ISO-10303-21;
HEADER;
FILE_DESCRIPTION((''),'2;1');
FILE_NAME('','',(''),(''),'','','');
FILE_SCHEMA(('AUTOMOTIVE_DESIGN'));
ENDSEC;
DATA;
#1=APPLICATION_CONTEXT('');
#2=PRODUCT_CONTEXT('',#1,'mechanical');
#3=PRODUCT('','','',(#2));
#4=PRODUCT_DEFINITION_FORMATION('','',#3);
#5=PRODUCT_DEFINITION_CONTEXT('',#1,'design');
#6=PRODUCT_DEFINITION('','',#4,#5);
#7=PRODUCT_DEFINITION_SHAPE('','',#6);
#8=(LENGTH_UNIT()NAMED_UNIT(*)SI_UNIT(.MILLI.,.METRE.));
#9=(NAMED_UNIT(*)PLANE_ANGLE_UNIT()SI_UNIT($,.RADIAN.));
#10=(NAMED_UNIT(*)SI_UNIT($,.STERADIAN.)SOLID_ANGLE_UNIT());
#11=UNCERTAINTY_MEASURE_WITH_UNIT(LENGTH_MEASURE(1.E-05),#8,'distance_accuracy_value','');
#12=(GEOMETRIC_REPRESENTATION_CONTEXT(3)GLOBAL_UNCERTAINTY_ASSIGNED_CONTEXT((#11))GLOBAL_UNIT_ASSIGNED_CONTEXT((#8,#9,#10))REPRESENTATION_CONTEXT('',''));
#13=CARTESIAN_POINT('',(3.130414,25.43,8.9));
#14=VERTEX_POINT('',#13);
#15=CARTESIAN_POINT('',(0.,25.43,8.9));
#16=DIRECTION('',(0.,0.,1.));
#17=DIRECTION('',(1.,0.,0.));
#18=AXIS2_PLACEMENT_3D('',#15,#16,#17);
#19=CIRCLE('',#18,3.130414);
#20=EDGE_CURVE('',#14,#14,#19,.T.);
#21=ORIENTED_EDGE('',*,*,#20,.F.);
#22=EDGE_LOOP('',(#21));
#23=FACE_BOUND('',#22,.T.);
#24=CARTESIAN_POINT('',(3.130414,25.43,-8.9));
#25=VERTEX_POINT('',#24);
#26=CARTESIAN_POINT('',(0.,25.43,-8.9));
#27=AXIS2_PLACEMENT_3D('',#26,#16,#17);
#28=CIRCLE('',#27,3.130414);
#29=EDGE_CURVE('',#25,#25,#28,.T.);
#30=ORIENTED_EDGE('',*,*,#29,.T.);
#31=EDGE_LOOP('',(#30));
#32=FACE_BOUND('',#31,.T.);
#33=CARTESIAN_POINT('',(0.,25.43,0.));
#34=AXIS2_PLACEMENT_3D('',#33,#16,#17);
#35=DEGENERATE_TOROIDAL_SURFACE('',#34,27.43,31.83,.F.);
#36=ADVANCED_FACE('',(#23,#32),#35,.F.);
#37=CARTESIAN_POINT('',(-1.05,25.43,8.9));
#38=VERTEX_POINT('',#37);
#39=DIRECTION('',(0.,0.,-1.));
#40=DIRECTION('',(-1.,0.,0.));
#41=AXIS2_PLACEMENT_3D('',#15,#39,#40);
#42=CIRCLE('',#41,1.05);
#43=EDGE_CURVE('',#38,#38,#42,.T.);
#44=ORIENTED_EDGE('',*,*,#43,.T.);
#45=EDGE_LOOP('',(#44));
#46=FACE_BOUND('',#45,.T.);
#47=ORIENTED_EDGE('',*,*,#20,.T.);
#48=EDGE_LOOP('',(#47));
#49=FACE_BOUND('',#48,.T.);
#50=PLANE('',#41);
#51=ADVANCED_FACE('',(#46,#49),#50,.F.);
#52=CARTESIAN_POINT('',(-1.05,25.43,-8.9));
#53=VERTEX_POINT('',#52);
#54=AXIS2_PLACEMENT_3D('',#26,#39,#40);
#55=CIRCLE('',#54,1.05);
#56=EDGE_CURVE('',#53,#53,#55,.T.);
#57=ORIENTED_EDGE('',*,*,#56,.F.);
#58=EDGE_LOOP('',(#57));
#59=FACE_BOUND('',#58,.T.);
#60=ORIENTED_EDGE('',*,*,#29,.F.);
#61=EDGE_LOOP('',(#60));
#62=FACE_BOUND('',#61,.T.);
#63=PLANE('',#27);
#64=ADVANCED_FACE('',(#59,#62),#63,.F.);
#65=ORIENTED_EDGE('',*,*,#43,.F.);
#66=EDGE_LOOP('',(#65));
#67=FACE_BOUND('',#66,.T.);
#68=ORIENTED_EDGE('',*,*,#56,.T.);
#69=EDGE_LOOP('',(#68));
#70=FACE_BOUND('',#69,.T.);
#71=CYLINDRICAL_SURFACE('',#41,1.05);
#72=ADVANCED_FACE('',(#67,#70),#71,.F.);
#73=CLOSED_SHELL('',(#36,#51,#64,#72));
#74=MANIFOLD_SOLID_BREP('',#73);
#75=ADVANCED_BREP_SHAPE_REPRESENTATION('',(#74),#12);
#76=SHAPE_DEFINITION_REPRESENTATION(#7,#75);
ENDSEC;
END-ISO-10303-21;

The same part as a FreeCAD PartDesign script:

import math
import FreeCAD as App
import Part
import Sketcher

V = App.Vector

doc = App.newDocument("Part")
body = doc.addObject("PartDesign::Body", "Body")

# Sketch on YZ plane
sketch1 = body.newObject("Sketcher::SketchObject", "Sketch")
sketch1.AttachmentSupport = (doc.getObject("YZ_Plane"), [""])
sketch1.MapMode = "FlatFace"
sketch1.addGeometry([
    Part.LineSegment(V(25.43, -8.9, 0), V(28.56, -8.9, 0)),  # 0
    Part.ArcOfCircle(Part.Circle(V(-2, 0, 0), V(0, 0, 1), 31.83), math.radians(-16.24), math.radians(-15.49)),  # 1
    Part.ArcOfCircle(Part.Circle(V(-2, 0, 0), V(0, 0, 1), 31.83), math.radians(-15), math.radians(15)),  # 2
    Part.ArcOfCircle(Part.Circle(V(-2, 0, 0), V(0, 0, 1), 31.83), math.radians(15.49), math.radians(16.24)),  # 3
    Part.LineSegment(V(28.56, 8.9, 0), V(25.43, 8.9, 0)),  # 4
    Part.LineSegment(V(25.43, 8.9, 0), V(25.43, -8.9, 0)),  # 5
], False)
sketch1.addGeometry(Part.LineSegment(V(25.43, 8.9, 0), V(25.43, -8.9, 0)), True)  # axis
sketch1.addConstraint([
    Sketcher.Constraint("Coincident", 0, 2, 1, 1),
    Sketcher.Constraint("Tangent", 1, 2, 2, 1),
    Sketcher.Constraint("Tangent", 2, 2, 3, 1),
    Sketcher.Constraint("Coincident", 3, 2, 4, 1),
    Sketcher.Constraint("Coincident", 4, 2, 5, 1),
    Sketcher.Constraint("Coincident", 5, 2, 0, 1),
    Sketcher.Constraint("Horizontal", 0),
    Sketcher.Constraint("Horizontal", 4),
    Sketcher.Constraint("Vertical", 5),
    Sketcher.Constraint("Vertical", 6),
    Sketcher.Constraint("Coincident", 3, 3, 1, 3),
    Sketcher.Constraint("Coincident", 6, 1, 4, 2),
    Sketcher.Constraint("Symmetric", 1, 2, 2, 2, -1),
    Sketcher.Constraint("Horizontal", 0, 2, 6, 2),
    Sketcher.Constraint("Vertical", 0, 2, 3, 2),
    Sketcher.Constraint("Radius", 2, 31.83),
    Sketcher.Constraint("DistanceY", 5, 2, 5, 1, 17.8),
    Sketcher.Constraint("DistanceX", 2, 3, -1, 1, 2.0),
    Sketcher.Constraint("DistanceY", 1, 2, 2, 2, 17.0),
    Sketcher.Constraint("DistanceX", -1, 1, 4, 2, 25.43),
])
revolution = body.newObject("PartDesign::Revolution", "Revolution")
revolution.Profile = sketch1
revolution.ReferenceAxis = (sketch1, ["Axis0"])
revolution.Angle = 360

# Sketch on XY plane
sketch2 = body.newObject("Sketcher::SketchObject", "Sketch001")
sketch2.AttachmentSupport = (doc.getObject("XY_Plane"), [""])
sketch2.MapMode = "FlatFace"
sketch2.AttachmentOffset = App.Placement(V(0, 0, -8.9), App.Rotation())
sketch2.addGeometry(Part.Circle(V(0, 25.4, 0), V(0, 0, 1), 1.1), False)
sketch2.addConstraint([
    Sketcher.Constraint("PointOnObject", 0, 3, -2),
    Sketcher.Constraint("Diameter", 0, 2.1),
    Sketcher.Constraint("DistanceY", -1, 1, 0, 3, 25.43),
])
pocket1 = body.newObject("PartDesign::Pocket", "Pocket")
pocket1.Profile = sketch2
pocket1.Type = "ThroughAll"
pocket1.Reversed = True

doc.recompute()
